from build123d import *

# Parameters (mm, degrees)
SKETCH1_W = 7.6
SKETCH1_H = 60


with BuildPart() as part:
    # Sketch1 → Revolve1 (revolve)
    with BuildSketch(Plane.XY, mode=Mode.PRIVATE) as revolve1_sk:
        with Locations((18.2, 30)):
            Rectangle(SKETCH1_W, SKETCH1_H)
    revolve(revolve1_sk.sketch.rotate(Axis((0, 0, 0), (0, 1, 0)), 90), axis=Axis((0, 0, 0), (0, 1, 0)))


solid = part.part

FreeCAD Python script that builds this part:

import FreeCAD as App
import Part
import Sketcher

V = App.Vector


def add_polygon(sketch, points):
    """Adds a closed chain of lines whose ends are joined by coincident constraints."""
    first, n = sketch.GeometryCount, len(points)
    for a, b in zip(points, points[1:] + points[:1]):
        sketch.addGeometry(Part.LineSegment(App.Vector(*a, 0), App.Vector(*b, 0)), False)
    for i in range(n):
        sketch.addConstraint(Sketcher.Constraint("Coincident", first + i, 2, first + (i + 1) % n, 1))

doc = App.newDocument("Part")
body = doc.addObject("PartDesign::Body", "Body")

sketch1 = body.newObject("Sketcher::SketchObject", "Sketch")
sketch1.AttachmentSupport = (doc.getObject("XY_Plane"), [""])
sketch1.MapMode = "FlatFace"
add_polygon(sketch1, [(14, 60), (14, 0), (22, 0), (22, 60)])
sketch1.addConstraint(Sketcher.Constraint("Vertical", 0))
sketch1.addConstraint(Sketcher.Constraint("Horizontal", 1))
sketch1.addConstraint(Sketcher.Constraint("Vertical", 2))
sketch1.addConstraint(Sketcher.Constraint("Horizontal", 3))
sketch1.addConstraint(Sketcher.Constraint("PointOnObject", 0, 2, -1))
sketch1.addConstraint(Sketcher.Constraint("DistanceY", 0, 2, 0, 1, 60.0))
sketch1.addConstraint(Sketcher.Constraint("DistanceX", 1, 1, 1, 2, 7.6))
sketch1.addConstraint(Sketcher.Constraint("DistanceX", -1, 1, 1, 2, 22.0))
revolution = body.newObject("PartDesign::Revolution", "Revolution")
revolution.Profile = sketch1
revolution.ReferenceAxis = (sketch1, ["V_Axis"])
revolution.Angle = 360

doc.recompute()
